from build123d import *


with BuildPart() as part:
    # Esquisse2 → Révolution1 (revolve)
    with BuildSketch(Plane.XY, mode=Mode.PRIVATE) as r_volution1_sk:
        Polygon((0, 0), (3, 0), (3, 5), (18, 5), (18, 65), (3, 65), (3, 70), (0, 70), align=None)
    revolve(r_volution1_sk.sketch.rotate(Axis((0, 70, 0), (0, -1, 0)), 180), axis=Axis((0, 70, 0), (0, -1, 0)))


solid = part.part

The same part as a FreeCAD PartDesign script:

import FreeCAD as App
import Part
import Sketcher

V = App.Vector


def add_polygon(sketch, points):
    """Adds a closed chain of lines whose ends are joined by coincident constraints."""
    first, n = sketch.GeometryCount, len(points)
    for a, b in zip(points, points[1:] + points[:1]):
        sketch.addGeometry(Part.LineSegment(App.Vector(*a, 0), App.Vector(*b, 0)), False)
    for i in range(n):
        sketch.addConstraint(Sketcher.Constraint("Coincident", first + i, 2, first + (i + 1) % n, 1))

doc = App.newDocument("Part")
body = doc.addObject("PartDesign::Body", "Body")

sketch1 = body.newObject("Sketcher::SketchObject", "Sketch")
sketch1.AttachmentSupport = (doc.getObject("XY_Plane"), [""])
sketch1.MapMode = "FlatFace"
add_polygon(sketch1, [(0, 0), (3, 0), (3, 5), (18, 5), (18, 65), (3, 65), (3, 70), (0, 70)])
sketch1.addConstraint([
    Sketcher.Constraint("Horizontal", 0),
    Sketcher.Constraint("Vertical", 1),
    Sketcher.Constraint("Horizontal", 2),
    Sketcher.Constraint("Vertical", 3),
    Sketcher.Constraint("Horizontal", 4),
    Sketcher.Constraint("Vertical", 5),
    Sketcher.Constraint("Horizontal", 6),
    Sketcher.Constraint("Vertical", 7),
    Sketcher.Constraint("Coincident", 7, 2, -1, 1),
    Sketcher.Constraint("Vertical", 1, 2, 4, 2),
    Sketcher.Constraint("Equal", 1, 5),
    Sketcher.Constraint("DistanceX", 0, 1, 0, 2, 3.0),
    Sketcher.Constraint("DistanceX", 2, 1, 2, 2, 15.0),
    Sketcher.Constraint("DistanceY", 1, 1, 1, 2, 5.0),
    Sketcher.Constraint("DistanceY", 3, 1, 3, 2, 60.0),
])
revolution = body.newObject("PartDesign::Revolution", "Revolution")
revolution.Profile = sketch1
revolution.ReferenceAxis = (sketch1, ["V_Axis"])
revolution.Angle = 360

doc.recompute()
